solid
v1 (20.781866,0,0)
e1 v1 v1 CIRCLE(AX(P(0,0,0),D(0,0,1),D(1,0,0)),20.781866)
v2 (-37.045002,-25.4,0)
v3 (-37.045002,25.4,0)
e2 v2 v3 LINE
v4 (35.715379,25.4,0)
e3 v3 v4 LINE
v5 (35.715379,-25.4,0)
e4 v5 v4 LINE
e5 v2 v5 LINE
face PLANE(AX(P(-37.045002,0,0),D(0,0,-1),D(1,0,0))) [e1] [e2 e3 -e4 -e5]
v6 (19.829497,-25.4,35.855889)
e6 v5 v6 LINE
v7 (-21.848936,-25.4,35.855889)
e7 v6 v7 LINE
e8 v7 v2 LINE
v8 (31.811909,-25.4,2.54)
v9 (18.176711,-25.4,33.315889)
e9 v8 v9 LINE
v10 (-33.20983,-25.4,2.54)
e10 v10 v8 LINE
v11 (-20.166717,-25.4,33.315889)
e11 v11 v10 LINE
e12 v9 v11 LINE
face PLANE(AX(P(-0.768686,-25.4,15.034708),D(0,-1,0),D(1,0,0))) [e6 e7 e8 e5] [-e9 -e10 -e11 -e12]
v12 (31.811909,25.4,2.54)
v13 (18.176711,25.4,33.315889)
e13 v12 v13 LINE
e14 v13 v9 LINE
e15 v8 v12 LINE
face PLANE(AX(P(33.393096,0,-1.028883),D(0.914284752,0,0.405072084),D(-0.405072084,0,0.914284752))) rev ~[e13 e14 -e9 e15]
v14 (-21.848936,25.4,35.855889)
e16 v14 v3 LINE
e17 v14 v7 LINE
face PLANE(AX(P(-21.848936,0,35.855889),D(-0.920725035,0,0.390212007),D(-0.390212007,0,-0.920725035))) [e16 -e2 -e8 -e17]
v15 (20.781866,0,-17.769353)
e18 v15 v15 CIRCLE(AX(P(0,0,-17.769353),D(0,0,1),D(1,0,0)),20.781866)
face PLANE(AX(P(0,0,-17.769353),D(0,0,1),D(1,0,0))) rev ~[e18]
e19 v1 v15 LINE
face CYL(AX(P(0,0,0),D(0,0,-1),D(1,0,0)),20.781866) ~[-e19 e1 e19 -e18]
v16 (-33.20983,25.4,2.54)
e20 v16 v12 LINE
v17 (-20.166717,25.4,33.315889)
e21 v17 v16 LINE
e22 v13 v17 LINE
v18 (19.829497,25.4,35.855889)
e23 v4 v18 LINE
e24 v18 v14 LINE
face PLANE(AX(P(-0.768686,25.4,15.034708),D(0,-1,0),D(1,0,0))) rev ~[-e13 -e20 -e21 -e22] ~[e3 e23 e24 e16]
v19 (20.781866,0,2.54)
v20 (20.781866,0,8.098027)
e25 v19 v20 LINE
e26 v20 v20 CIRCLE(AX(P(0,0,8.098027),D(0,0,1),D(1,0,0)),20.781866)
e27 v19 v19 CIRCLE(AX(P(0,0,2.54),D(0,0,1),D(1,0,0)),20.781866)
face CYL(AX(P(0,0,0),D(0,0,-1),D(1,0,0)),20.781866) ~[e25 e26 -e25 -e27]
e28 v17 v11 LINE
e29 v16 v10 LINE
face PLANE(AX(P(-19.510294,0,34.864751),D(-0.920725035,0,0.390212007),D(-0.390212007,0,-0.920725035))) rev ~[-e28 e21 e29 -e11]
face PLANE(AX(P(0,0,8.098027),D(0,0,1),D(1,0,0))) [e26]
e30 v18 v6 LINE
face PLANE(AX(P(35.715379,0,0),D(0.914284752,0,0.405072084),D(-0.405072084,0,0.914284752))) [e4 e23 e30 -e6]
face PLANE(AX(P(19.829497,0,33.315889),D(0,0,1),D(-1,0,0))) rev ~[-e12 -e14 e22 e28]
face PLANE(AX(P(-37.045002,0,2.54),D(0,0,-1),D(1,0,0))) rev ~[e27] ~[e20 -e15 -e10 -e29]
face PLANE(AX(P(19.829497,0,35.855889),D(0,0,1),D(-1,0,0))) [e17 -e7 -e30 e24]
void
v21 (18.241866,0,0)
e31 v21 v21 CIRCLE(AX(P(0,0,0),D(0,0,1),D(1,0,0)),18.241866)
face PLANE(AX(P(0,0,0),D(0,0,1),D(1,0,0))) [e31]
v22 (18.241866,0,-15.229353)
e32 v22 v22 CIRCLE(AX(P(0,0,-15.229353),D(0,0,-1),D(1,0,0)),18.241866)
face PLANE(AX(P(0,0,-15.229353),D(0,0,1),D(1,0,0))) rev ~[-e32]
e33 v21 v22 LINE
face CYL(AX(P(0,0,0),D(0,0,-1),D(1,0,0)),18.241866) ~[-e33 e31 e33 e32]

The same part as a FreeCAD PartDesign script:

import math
import FreeCAD as App
import Part
import Sketcher

V = App.Vector
Q = App.Units.Quantity


def faces_at(feature, points):
    """Names of the faces that lie closest to the given points."""
    faces = feature.Shape.Faces
    near = lambda p: min(range(len(faces)), key=lambda i: faces[i].distToShape(Part.Vertex(*p))[0])
    return sorted({f"Face{near(p) + 1}" for p in points})


def add_polygon(sketch, points):
    """Adds a closed chain of lines whose ends are joined by coincident constraints."""
    first, n = sketch.GeometryCount, len(points)
    for a, b in zip(points, points[1:] + points[:1]):
        sketch.addGeometry(Part.LineSegment(App.Vector(*a, 0), App.Vector(*b, 0)), False)
    for i in range(n):
        sketch.addConstraint(Sketcher.Constraint("Coincident", first + i, 2, first + (i + 1) % n, 1))

doc = App.newDocument("Part")
body = doc.addObject("PartDesign::Body", "Body")

# Sketch on XZ plane
sketch1 = body.newObject("Sketcher::SketchObject", "Sketch")
sketch1.AttachmentSupport = (doc.getObject("XZ_Plane"), [""])
sketch1.MapMode = "FlatFace"
add_polygon(sketch1, [(35.715379, 0), (19.829497, 35.855889), (-21.848936, 35.855889), (-37.045002, 0)])  # lines 0-3
sketch1.addConstraint([
    Sketcher.Constraint("Horizontal", 1),
    Sketcher.Constraint("Horizontal", 3),
    Sketcher.Constraint("PointOnObject", 2, 2, -1),
    Sketcher.Constraint("DistanceX", 3, 1, 3, 2, 72.760381),
    Sketcher.Constraint("DistanceX", 2, 2, -1, 1, 37.045002),
    Sketcher.Constraint("DistanceX", 2, 2, 0, 2, 56.874499),
    Sketcher.Constraint("Distance", 0, 39.21742),
    Sketcher.Constraint("DistanceX", 1, 2, 1, 1, 41.678433),
])
pad1 = body.newObject("PartDesign::Pad", "Pad")
pad1.Profile = sketch1
pad1.Length = Q("1 in")

# Sketch on XY plane
sketch2 = body.newObject("Sketcher::SketchObject", "Sketch001")
sketch2.AttachmentSupport = (doc.getObject("XY_Plane"), [""])
sketch2.MapMode = "FlatFace"
sketch2.addGeometry(Part.Circle(V(0, 0, 0), V(0, 0, 1), 20.781866), False)
sketch2.addConstraint([
    Sketcher.Constraint("Coincident", 0, 3, -1, 1),
    Sketcher.Constraint("Diameter", 0, 41.563732),
])
pad2 = body.newObject("PartDesign::Pad", "Pad001")
pad2.Profile = sketch2
pad2.Length = 17.769353
pad2.Reversed = True

# Sketch on XY plane
sketch3 = body.newObject("Sketcher::SketchObject", "Sketch002")
sketch3.AttachmentSupport = (doc.getObject("XY_Plane"), [""])
sketch3.MapMode = "FlatFace"
sketch3.addGeometry([
    Part.LineSegment(V(-20.781866, 0, 0), V(20.781866, 0, 0)),
    Part.ArcOfCircle(Part.Circle(V(0, 0, 0), V(0, 0, 1), 20.781866), math.radians(0), math.radians(180)),
], False)
sketch3.addConstraint([
    Sketcher.Constraint("Coincident", 0, 1, 1, 2),
    Sketcher.Constraint("Coincident", 1, 1, 0, 2),
    Sketcher.Constraint("Horizontal", 0),
    Sketcher.Constraint("Coincident", 1, 3, -1, 1),
    Sketcher.Constraint("PointOnObject", 0, 1, -1),
    Sketcher.Constraint("Radius", 1, 20.781866),
])
pad3 = body.newObject("PartDesign::Pad", "Pad002")
pad3.Profile = sketch3
pad3.Length = 11.559019

# Sketch on XZ plane
sketch4 = body.newObject("Sketcher::SketchObject", "Sketch003")
sketch4.AttachmentSupport = (doc.getObject("XZ_Plane"), [""])
sketch4.MapMode = "FlatFace"
add_polygon(sketch4, [(35.715379, 0), (19.829497, 35.855889), (-21.848936, 35.855889), (-37.045002, 0)])  # lines 0-3
sketch4.addConstraint([
    Sketcher.Constraint("Horizontal", 1),
    Sketcher.Constraint("Horizontal", 3),
    Sketcher.Constraint("PointOnObject", 2, 2, -1),
    Sketcher.Constraint("DistanceX", 3, 1, 3, 2, 72.760381),
    Sketcher.Constraint("DistanceX", 2, 2, -1, 1, 37.045002),
    Sketcher.Constraint("DistanceX", 2, 2, 0, 2, 56.874499),
    Sketcher.Constraint("Distance", 0, 39.21742),
    Sketcher.Constraint("DistanceX", 1, 2, 1, 1, 41.678433),
])
pad4 = body.newObject("PartDesign::Pad", "Pad003")
pad4.Profile = sketch4
pad4.Length = Q("1 in")
pad4.Reversed = True
doc.recompute()

thickness = body.newObject("PartDesign::Thickness", "Thickness")
thickness.Base = (pad4, faces_at(pad4, [(-0.665, -25.4, 17.928), (-0.665, 25.4, 17.928)]))
thickness.Value = Q("0.1 in")
thickness.Reversed = True
thickness.Join = "Arc"

# Sketch on XY plane
sketch5 = body.newObject("Sketcher::SketchObject", "Sketch004")
sketch5.AttachmentSupport = (doc.getObject("XY_Plane"), [""])
sketch5.MapMode = "FlatFace"
sketch5.addGeometry(Part.Circle(V(0, 0, 0), V(0, 0, 1), 20.781866), False)
sketch5.addConstraint([
    Sketcher.Constraint("Coincident", 0, 3, -1, 1),
    Sketcher.Constraint("Diameter", 0, 41.563732),
])
pad5 = body.newObject("PartDesign::Pad", "Pad004")
pad5.Profile = sketch5
pad5.Length = 8.098027

doc.recompute()
